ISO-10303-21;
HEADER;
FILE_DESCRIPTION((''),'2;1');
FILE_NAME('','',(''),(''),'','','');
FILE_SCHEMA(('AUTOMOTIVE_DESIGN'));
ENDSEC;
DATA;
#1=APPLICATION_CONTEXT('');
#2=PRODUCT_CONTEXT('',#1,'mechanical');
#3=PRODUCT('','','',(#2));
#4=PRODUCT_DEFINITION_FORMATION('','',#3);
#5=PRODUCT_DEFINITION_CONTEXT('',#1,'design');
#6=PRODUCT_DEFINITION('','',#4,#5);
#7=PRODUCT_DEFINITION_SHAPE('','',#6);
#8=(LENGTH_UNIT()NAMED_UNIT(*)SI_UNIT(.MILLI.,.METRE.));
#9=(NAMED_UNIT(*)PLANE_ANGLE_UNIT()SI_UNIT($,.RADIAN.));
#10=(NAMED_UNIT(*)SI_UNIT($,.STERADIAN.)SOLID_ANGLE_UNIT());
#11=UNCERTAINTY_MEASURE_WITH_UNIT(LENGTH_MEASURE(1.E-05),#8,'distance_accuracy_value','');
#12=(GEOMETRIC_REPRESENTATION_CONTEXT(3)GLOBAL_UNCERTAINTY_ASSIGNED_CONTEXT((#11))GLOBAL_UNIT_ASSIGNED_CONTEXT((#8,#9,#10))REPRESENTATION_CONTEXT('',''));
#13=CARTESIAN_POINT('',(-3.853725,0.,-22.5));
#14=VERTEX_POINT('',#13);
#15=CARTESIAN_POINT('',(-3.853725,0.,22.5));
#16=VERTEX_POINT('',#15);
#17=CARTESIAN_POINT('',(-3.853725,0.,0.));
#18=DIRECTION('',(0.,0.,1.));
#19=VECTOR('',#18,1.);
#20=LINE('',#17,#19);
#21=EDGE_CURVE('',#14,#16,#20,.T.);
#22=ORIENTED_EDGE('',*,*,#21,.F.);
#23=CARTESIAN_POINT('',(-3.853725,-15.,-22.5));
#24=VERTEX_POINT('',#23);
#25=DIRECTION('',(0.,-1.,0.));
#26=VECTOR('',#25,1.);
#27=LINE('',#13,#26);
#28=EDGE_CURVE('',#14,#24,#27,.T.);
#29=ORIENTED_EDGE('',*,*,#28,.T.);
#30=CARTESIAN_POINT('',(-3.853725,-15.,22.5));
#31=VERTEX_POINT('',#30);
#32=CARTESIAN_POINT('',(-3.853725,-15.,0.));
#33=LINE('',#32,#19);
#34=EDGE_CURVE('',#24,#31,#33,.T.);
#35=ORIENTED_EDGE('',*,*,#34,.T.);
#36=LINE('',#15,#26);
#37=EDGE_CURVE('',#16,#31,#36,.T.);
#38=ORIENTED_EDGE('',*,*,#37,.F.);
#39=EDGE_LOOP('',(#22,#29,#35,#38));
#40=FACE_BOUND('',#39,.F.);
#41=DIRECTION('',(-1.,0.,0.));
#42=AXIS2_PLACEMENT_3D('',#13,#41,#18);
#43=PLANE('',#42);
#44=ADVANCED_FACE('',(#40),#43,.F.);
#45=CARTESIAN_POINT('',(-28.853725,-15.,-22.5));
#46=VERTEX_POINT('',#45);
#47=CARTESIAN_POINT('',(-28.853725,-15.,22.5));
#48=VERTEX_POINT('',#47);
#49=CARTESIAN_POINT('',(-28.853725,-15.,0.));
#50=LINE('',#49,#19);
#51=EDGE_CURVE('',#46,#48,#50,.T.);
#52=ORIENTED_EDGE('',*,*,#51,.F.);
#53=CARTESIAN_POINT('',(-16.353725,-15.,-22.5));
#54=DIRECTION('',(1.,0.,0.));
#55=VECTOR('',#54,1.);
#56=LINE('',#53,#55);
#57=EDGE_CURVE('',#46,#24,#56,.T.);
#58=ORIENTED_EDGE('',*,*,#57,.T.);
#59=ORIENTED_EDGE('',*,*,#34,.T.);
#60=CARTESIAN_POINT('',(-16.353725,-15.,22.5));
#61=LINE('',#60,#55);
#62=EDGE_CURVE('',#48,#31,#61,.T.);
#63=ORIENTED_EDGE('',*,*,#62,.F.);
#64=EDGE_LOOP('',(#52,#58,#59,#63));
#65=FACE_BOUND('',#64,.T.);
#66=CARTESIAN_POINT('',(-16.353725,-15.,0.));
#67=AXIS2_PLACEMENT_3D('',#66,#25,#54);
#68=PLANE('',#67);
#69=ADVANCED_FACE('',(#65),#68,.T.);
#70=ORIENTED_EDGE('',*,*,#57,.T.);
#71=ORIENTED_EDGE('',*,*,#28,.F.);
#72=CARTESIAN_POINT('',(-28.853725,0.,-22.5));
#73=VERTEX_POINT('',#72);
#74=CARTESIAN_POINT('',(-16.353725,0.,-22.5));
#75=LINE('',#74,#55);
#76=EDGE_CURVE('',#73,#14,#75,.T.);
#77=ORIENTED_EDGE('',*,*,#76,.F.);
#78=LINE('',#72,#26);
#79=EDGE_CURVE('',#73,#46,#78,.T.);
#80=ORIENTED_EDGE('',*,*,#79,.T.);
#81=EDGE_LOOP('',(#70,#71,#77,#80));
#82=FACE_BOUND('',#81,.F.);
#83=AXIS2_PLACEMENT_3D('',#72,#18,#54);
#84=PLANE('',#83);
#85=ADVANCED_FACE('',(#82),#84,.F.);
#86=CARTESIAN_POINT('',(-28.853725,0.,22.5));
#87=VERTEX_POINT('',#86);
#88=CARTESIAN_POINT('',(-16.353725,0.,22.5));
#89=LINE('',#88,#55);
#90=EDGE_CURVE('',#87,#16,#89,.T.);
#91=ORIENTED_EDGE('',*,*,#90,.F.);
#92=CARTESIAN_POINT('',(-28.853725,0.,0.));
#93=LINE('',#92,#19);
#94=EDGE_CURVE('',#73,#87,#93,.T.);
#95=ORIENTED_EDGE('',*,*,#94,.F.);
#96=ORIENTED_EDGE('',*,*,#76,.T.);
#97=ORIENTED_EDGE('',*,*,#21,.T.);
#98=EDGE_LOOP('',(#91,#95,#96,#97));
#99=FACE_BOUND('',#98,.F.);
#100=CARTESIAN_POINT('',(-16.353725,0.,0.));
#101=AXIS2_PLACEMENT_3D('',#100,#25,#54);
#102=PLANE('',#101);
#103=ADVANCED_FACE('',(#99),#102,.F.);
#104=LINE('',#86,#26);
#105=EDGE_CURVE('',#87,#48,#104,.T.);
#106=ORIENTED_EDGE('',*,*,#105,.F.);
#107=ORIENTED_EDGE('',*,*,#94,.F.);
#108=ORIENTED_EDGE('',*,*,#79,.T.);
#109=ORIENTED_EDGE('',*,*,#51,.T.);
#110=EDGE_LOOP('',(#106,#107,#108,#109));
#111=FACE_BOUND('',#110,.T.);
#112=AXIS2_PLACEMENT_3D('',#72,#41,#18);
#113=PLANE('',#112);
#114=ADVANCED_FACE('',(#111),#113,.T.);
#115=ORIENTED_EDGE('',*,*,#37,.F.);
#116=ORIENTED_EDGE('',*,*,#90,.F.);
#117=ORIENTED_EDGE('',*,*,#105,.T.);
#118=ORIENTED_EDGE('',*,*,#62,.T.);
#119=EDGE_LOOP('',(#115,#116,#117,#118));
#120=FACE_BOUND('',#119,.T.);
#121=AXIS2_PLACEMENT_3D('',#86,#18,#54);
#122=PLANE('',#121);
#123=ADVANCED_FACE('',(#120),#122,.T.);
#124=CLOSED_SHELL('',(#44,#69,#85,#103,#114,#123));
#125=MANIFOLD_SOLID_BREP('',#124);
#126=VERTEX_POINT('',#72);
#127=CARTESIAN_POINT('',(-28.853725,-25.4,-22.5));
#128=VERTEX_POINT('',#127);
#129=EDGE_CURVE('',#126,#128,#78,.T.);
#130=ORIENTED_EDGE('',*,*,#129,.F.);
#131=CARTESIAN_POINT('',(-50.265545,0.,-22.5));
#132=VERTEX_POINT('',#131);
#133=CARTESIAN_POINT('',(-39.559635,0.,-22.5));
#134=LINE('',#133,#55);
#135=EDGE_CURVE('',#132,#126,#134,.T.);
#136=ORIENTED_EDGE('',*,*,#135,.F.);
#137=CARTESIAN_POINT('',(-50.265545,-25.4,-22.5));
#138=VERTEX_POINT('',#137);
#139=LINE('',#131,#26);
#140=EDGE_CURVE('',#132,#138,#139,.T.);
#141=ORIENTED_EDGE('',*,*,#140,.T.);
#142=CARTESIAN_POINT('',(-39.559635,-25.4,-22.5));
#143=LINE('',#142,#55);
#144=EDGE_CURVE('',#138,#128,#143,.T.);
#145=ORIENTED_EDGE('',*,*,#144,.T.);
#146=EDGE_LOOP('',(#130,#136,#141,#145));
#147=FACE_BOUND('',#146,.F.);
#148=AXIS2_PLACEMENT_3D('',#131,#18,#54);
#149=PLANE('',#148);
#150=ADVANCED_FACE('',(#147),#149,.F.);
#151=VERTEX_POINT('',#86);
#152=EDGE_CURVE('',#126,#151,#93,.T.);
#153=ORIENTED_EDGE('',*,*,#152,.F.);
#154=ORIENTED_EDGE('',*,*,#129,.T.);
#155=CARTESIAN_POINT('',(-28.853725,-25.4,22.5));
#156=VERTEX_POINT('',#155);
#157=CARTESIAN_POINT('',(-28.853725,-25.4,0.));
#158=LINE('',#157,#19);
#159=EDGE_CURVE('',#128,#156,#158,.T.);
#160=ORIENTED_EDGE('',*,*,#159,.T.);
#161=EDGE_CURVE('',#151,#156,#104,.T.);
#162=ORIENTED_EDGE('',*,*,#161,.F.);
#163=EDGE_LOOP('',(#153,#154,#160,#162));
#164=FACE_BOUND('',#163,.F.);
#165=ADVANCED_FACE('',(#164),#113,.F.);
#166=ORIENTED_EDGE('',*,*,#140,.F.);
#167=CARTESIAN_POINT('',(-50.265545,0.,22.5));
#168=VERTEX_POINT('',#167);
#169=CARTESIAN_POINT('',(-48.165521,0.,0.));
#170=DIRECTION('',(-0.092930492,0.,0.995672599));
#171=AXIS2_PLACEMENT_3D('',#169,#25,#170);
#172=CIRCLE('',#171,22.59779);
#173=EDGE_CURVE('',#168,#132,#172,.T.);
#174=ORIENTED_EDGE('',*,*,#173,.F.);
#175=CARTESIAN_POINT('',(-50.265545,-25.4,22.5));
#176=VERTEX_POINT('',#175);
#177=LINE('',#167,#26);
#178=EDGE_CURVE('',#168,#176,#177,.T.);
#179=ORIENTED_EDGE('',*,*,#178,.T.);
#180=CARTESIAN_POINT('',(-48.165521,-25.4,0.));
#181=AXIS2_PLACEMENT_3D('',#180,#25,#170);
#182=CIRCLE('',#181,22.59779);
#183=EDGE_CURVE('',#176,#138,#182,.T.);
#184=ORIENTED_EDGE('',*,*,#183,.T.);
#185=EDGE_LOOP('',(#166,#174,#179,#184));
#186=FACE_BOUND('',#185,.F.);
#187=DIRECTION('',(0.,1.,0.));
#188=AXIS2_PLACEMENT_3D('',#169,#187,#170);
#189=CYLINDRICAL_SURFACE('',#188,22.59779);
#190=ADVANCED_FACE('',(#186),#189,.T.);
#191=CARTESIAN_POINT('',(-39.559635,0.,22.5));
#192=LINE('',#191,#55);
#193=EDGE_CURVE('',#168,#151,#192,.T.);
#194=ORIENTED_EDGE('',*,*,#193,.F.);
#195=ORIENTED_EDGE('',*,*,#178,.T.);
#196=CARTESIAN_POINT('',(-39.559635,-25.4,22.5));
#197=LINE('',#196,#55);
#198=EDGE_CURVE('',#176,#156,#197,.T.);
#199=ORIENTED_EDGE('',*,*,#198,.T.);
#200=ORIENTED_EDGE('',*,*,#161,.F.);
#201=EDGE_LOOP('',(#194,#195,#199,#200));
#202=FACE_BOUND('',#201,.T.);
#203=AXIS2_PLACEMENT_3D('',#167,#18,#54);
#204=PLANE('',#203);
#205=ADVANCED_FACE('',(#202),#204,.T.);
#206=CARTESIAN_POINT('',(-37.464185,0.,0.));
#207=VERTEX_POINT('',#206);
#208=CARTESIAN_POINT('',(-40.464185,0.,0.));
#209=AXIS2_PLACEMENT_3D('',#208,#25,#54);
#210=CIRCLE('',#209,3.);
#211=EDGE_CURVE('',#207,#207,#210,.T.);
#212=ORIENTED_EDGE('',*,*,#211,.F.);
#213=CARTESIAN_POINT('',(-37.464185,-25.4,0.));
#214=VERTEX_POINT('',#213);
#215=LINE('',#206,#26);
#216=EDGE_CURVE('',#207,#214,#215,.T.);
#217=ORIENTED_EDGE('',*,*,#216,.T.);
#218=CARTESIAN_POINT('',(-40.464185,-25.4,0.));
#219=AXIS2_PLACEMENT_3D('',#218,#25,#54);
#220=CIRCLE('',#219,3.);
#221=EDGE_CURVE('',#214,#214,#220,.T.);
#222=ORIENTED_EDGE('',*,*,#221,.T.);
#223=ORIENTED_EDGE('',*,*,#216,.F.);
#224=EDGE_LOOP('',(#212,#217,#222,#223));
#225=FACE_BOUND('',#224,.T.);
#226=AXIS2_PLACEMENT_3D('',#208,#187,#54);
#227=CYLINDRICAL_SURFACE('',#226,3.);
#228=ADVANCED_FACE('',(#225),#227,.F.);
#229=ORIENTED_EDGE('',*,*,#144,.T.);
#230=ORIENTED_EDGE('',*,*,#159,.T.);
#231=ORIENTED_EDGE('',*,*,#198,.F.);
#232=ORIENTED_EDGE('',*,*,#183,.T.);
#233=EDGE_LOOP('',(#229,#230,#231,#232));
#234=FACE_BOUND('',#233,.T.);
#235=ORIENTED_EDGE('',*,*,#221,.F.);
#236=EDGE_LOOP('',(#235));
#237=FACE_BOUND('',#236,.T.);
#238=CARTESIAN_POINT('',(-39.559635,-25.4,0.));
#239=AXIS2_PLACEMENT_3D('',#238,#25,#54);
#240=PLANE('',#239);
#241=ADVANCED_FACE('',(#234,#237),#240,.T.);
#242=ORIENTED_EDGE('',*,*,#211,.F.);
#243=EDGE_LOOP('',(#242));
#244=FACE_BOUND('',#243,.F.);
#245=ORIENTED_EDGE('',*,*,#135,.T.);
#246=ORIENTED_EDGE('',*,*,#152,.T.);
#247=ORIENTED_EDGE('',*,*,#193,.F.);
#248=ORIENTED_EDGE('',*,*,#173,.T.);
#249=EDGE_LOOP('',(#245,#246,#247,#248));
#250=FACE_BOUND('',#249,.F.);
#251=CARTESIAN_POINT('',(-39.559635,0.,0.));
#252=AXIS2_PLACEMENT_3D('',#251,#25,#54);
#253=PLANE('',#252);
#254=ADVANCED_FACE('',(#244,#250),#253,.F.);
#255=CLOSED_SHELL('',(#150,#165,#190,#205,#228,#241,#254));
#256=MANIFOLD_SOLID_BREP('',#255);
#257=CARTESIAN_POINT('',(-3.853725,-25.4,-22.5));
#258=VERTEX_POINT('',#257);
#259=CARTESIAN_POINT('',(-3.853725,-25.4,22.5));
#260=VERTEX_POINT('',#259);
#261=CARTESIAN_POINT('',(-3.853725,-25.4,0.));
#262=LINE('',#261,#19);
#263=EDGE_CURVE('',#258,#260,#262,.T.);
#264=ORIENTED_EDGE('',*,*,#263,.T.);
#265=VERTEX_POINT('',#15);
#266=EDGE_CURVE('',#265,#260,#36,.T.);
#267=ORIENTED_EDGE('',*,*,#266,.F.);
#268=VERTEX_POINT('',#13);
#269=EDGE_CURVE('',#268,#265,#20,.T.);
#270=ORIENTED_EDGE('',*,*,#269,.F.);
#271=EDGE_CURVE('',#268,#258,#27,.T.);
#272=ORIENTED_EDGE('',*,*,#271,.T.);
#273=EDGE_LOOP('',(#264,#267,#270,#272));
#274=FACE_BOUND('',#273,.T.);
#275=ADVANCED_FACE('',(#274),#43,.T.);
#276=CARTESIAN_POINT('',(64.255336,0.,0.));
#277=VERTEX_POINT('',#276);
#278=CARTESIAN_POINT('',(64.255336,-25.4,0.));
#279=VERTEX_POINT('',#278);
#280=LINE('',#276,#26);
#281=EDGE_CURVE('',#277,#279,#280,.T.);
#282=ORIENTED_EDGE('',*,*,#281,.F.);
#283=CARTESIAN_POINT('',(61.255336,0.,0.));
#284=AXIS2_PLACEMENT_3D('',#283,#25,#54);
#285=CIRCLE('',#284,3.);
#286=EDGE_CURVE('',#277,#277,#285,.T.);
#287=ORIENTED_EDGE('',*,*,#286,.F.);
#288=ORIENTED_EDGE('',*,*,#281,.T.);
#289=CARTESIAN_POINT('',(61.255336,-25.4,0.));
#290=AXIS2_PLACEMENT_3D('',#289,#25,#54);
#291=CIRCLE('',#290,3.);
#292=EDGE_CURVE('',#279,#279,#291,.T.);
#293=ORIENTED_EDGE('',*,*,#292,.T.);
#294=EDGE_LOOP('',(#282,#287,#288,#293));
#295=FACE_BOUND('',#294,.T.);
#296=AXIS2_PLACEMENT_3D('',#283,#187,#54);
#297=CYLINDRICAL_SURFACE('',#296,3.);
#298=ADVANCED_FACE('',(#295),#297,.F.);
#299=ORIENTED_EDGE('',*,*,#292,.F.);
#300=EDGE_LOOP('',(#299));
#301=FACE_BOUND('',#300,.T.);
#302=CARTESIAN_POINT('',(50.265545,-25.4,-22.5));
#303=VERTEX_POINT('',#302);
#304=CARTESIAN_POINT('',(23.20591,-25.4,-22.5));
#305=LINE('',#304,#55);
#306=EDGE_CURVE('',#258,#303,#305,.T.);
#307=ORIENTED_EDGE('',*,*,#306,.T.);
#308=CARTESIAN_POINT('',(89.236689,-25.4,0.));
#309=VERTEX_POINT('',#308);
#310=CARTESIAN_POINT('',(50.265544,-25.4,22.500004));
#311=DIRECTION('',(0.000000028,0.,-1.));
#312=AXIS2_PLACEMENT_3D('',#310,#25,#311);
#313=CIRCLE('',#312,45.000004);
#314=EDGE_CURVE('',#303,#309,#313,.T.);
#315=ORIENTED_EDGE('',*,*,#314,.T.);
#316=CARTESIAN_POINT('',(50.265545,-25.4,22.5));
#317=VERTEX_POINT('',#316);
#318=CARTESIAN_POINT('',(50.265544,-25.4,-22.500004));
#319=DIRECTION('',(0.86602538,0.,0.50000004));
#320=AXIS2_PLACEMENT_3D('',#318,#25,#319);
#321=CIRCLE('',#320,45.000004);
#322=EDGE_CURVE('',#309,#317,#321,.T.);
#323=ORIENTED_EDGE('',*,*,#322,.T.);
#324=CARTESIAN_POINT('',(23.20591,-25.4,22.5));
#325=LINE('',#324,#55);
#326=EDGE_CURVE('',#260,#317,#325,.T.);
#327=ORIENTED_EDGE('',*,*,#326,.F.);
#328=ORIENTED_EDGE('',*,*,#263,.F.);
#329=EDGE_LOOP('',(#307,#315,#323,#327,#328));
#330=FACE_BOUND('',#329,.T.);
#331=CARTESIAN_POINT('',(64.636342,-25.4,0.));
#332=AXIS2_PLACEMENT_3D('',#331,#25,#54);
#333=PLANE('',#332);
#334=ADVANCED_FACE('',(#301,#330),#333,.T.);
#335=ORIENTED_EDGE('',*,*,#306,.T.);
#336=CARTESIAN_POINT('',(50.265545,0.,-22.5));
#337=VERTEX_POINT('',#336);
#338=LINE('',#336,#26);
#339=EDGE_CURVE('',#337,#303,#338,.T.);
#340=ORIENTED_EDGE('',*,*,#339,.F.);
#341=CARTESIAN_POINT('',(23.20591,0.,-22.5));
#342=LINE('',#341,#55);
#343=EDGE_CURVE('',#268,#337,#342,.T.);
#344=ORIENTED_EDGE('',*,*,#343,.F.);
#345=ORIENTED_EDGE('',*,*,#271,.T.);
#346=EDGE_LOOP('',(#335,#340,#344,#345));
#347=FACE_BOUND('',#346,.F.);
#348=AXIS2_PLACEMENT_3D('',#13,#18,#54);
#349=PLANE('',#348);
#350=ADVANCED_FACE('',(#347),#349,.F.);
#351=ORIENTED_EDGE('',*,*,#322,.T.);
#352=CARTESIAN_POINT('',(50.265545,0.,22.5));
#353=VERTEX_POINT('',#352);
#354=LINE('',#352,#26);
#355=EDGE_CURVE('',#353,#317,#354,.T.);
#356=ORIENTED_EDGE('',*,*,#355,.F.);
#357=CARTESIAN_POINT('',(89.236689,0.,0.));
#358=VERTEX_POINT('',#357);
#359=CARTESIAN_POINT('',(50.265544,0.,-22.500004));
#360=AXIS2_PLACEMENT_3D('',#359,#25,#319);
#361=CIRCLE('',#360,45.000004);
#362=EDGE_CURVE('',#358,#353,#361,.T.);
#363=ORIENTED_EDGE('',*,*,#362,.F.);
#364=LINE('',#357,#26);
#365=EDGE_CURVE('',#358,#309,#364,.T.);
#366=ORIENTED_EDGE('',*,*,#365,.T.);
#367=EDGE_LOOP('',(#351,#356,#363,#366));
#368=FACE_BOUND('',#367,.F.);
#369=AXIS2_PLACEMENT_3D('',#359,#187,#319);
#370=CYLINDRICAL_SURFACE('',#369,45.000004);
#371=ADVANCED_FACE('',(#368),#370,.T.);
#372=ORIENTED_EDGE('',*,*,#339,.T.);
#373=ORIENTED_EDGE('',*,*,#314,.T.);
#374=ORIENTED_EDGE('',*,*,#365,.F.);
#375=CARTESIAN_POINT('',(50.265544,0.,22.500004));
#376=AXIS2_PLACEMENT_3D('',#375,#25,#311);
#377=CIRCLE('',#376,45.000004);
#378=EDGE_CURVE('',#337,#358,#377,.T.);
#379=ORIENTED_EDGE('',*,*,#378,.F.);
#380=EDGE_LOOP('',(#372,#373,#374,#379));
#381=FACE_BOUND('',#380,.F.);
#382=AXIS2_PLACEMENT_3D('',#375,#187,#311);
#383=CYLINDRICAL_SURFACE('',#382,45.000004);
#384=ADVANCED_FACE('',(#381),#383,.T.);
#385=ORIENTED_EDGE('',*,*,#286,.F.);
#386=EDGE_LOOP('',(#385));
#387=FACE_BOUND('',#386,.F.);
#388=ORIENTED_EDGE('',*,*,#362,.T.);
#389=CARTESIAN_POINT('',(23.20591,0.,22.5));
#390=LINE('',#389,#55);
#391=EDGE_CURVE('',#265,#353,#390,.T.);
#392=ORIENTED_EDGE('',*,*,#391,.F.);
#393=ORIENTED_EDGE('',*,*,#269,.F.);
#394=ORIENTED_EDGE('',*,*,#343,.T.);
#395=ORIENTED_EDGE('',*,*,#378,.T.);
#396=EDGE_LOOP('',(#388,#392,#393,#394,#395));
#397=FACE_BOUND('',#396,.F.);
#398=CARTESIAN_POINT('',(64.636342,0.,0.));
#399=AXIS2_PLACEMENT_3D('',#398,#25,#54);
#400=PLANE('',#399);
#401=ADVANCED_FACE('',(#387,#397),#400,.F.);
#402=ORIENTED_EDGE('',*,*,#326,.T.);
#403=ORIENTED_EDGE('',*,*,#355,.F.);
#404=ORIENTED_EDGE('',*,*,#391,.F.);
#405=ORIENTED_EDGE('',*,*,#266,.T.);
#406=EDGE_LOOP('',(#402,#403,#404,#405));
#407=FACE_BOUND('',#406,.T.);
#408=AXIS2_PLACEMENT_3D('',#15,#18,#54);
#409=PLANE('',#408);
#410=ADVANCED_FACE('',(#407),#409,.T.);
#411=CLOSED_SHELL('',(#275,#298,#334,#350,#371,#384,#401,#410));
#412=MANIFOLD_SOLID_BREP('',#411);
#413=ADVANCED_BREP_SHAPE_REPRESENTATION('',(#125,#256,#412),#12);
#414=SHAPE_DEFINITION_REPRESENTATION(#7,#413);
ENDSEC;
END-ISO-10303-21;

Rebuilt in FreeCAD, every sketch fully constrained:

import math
import FreeCAD as App
import Part
import Sketcher

V = App.Vector
Q = App.Units.Quantity

doc = App.newDocument("Part")
body = doc.addObject("PartDesign::Body", "Body")
body.AllowCompound = True

# Sketch on XZ plane
sketch1 = body.newObject("Sketcher::SketchObject", "Sketch")
sketch1.AttachmentSupport = (doc.getObject("XZ_Plane"), [""])
sketch1.MapMode = "FlatFace"
sketch1.addGeometry([
    Part.ArcOfCircle(Part.Circle(V(50.265544, -22.500004, 0), V(0, 0, 1), 45.000004), math.radians(30.000003), math.radians(89.999998)),  # 0
    Part.LineSegment(V(50.265545, 22.5, 0), V(-3.853725, 22.5, 0)),  # 1
    Part.LineSegment(V(-3.853725, 22.5, 0), V(-3.853725, -22.5, 0)),  # 2
    Part.LineSegment(V(-3.853725, -22.5, 0), V(50.265545, -22.5, 0)),  # 3
    Part.ArcOfCircle(Part.Circle(V(50.265544, 22.500004, 0), V(0, 0, 1), 45.000004), math.radians(-89.999998), math.radians(-30.000003)),  # 4
    Part.Circle(V(61.255336, 0, 0), V(0, 0, 1), 3),  # 5
    Part.LineSegment(V(-50.265545, -22.5, 0), V(-28.853725, -22.5, 0)),  # 6
    Part.LineSegment(V(-28.853725, -22.5, 0), V(-28.853725, 22.5, 0)),  # 7
    Part.LineSegment(V(-28.853725, 22.5, 0), V(-50.265545, 22.5, 0)),  # 8
    Part.ArcOfCircle(Part.Circle(V(-48.165521, 0, 0), V(0, 0, 1), 22.59779), math.radians(95.332219), math.radians(264.667781)),  # 9
    Part.Circle(V(-40.464185, 0, 0), V(0, 0, 1), 3),  # 10
], False)
sketch1.addConstraint([
    Sketcher.Constraint("Tangent", 0, 2, 1, 1),
    Sketcher.Constraint("Coincident", 1, 2, 2, 1),
    Sketcher.Constraint("Coincident", 2, 2, 3, 1),
    Sketcher.Constraint("Tangent", 3, 2, 4, 1),
    Sketcher.Constraint("Coincident", 4, 2, 0, 1),
    Sketcher.Constraint("Coincident", 6, 2, 7, 1),
    Sketcher.Constraint("Coincident", 7, 2, 8, 1),
    Sketcher.Constraint("Coincident", 8, 2, 9, 1),
    Sketcher.Constraint("Coincident", 9, 2, 6, 1),
    Sketcher.Constraint("Horizontal", 1),
    Sketcher.Constraint("Vertical", 2),
    Sketcher.Constraint("Horizontal", 3),
    Sketcher.Constraint("Horizontal", 6),
    Sketcher.Constraint("Vertical", 7),
    Sketcher.Constraint("Horizontal", 8),
    Sketcher.Constraint("Coincident", 0, 2, 4, 3),
    Sketcher.Constraint("Equal", 0, 4),
    Sketcher.Constraint("Equal", 5, 10),
    Sketcher.Constraint("Symmetric", 3, 2, 8, 2, -1, 1),
    Sketcher.Constraint("Symmetric", 0, 2, 9, 2, -1, 1),
    Sketcher.Constraint("PointOnObject", 5, 3, -1),
    Sketcher.Constraint("PointOnObject", 9, 3, -1),
    Sketcher.Constraint("PointOnObject", 10, 3, -1),
    Sketcher.Constraint("Diameter", 5, Q("6 mm")),
    Sketcher.Constraint("DistanceY", 2, 2, 2, 1, Q("45 mm")),
    Sketcher.Constraint("DistanceX", 6, 2, 2, 2, Q("25 mm")),
    Sketcher.Constraint("Radius", 9, Q("22.59779 mm")),
    Sketcher.Constraint("DistanceX", 1, 2, 1, 1, Q("54.11927 mm")),
    Sketcher.Constraint("DistanceX", 6, 1, 6, 2, Q("21.41182 mm")),
    Sketcher.Constraint("DistanceX", 10, 3, 0, 3, Q("90.729729 mm")),
    Sketcher.Constraint("DistanceX", 10, 3, 5, 3, Q("101.719521 mm")),
])
pad1 = body.newObject("PartDesign::Pad", "Pad")
pad1.Profile = sketch1
pad1.Length = 25.4
body2 = doc.addObject("PartDesign::Body", "Body001")

# Sketch on XZ plane
sketch2 = body2.newObject("Sketcher::SketchObject", "Sketch001")
sketch2.AttachmentSupport = (doc.getObject("XZ_Plane001"), [""])
sketch2.MapMode = "FlatFace"
sketch2.addGeometry([
    Part.LineSegment(V(-28.853725, 22.5, 0), V(-28.853725, -22.5, 0)),
    Part.LineSegment(V(-28.853725, -22.5, 0), V(-3.853725, -22.5, 0)),
    Part.LineSegment(V(-3.853725, -22.5, 0), V(-3.853725, 22.5, 0)),
    Part.LineSegment(V(-3.853725, 22.5, 0), V(-28.853725, 22.5, 0)),
], False)
sketch2.addConstraint([
    Sketcher.Constraint("Coincident", 0, 2, 1, 1),
    Sketcher.Constraint("Coincident", 1, 2, 2, 1),
    Sketcher.Constraint("Coincident", 2, 2, 3, 1),
    Sketcher.Constraint("Coincident", 3, 2, 0, 1),
    Sketcher.Constraint("Vertical", 0),
    Sketcher.Constraint("Horizontal", 1),
    Sketcher.Constraint("Vertical", 2),
    Sketcher.Constraint("Horizontal", 3),
    Sketcher.Constraint("DistanceX", 1, 1, 1, 2, Q("25 mm")),
    Sketcher.Constraint("DistanceY", 0, 2, 0, 1, Q("45 mm")),
    Sketcher.Constraint("DistanceY", 0, 2, -1, 1, Q("22.5 mm")),
    Sketcher.Constraint("DistanceX", 0, 2, -1, 1, Q("28.853725 mm")),
])
pad2 = body2.newObject("PartDesign::Pad", "Pad001")
pad2.Profile = sketch2
pad2.Length = 15

doc.recompute()
